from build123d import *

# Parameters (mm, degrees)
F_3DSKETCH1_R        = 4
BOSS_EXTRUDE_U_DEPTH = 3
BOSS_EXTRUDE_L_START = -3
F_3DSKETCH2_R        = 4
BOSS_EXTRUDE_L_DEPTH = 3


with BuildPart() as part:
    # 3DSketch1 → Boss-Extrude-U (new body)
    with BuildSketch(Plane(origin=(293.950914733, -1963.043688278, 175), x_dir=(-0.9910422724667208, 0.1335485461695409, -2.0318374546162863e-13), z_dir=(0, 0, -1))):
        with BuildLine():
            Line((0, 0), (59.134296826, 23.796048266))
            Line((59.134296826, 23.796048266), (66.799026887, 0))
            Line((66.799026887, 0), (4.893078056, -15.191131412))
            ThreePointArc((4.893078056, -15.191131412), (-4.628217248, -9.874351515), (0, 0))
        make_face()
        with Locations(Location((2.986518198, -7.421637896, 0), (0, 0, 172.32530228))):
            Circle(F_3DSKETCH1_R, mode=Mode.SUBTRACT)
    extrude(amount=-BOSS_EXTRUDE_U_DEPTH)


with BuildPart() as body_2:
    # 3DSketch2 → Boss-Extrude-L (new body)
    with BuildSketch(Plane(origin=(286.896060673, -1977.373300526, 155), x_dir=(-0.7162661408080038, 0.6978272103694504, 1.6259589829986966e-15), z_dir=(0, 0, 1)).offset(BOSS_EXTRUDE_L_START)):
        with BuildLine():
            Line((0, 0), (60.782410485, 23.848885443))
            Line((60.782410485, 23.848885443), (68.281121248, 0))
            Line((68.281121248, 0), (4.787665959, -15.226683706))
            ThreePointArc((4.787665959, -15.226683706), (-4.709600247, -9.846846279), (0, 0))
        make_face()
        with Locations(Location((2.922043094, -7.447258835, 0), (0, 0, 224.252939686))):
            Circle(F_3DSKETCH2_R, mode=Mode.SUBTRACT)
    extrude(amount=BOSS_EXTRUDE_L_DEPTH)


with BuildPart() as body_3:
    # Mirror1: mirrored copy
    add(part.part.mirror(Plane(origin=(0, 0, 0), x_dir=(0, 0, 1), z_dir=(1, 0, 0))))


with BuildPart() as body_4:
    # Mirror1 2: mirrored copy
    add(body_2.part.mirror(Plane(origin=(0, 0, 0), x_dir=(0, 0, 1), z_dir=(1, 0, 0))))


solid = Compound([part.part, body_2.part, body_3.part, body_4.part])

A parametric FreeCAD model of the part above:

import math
import FreeCAD as App
import Part
import Sketcher
from FreeCAD import Vector
Q = App.Units.Quantity

doc = App.newDocument("Part")
body = doc.addObject("PartDesign::Body", "Body")

sketch1 = doc.addObject("Sketcher::SketchObject", "Sketch")
body.addObject(sketch1)
sketch1.AttachmentSupport = (doc.XY_Plane, [""])
sketch1.MapMode = "FlatFace"
sketch1.AttachmentOffset = App.Placement(Vector(0, 0, 175), App.Rotation())
sketch1.addGeometry(Part.LineSegment(Vector(238.5, -1931.6, 0), Vector(294, -1963, 0)), False)
sketch1.addGeometry(Part.ArcOfCircle(Part.Circle(Vector(290, -1970, 0), Vector(0, 0, 1), 8), math.radians(-111), math.radians(60)), False)
sketch1.addGeometry(Part.LineSegment(Vector(287.1, -1977.4, 0), Vector(227.8, -1954.1, 0)), False)
sketch1.addGeometry(Part.LineSegment(Vector(227.8, -1954.1, 0), Vector(238.5, -1931.6, 0)), False)
sketch1.addGeometry(Part.Circle(Vector(290, -1970, 0), Vector(0, 0, 1), 4), False)
sketch1.addConstraint(Sketcher.Constraint("Tangent", 0, 2, 1, 2))
sketch1.addConstraint(Sketcher.Constraint("Tangent", 1, 1, 2, 1))
sketch1.addConstraint(Sketcher.Constraint("Coincident", 2, 2, 3, 1))
sketch1.addConstraint(Sketcher.Constraint("Coincident", 3, 2, 0, 1))
sketch1.addConstraint(Sketcher.Constraint("Coincident", 4, 3, 1, 3))
sketch1.addConstraint(Sketcher.Constraint("Equal", 0, 2))
sketch1.addConstraint(Sketcher.Constraint("Diameter", 4, Q("8 mm")))
sketch1.addConstraint(Sketcher.Constraint("Radius", 1, Q("8 mm")))
sketch1.addConstraint(Sketcher.Constraint("Distance", 3, Q("25 mm")))
sketch1.addConstraint(Sketcher.Constraint("DistanceX", -1, 1, 1, 3, Q("290 mm")))
sketch1.addConstraint(Sketcher.Constraint("DistanceY", 1, 3, -1, 1, Q("1970 mm")))
sketch1.addConstraint(Sketcher.Constraint("DistanceX", 1, 1, 0, 2, Q("6.878001 mm")))
sketch1.addConstraint(Sketcher.Constraint("DistanceY", 3, 2, -1, 1, Q("1931.563499 mm")))
pad1 = doc.addObject("PartDesign::Pad", "Pad")
body.addObject(pad1)
pad1.Profile = sketch1
pad1.Length = 3
body2 = doc.addObject("PartDesign::Body", "Body001")

sketch2 = doc.addObject("Sketcher::SketchObject", "Sketch001")
body2.addObject(sketch2)
sketch2.AttachmentSupport = (doc.getObject("XY_Plane001"), [""])
sketch2.MapMode = "FlatFace"
sketch2.AttachmentOffset = App.Placement(Vector(0, 0, 152), App.Rotation())
sketch2.addGeometry(Part.LineSegment(Vector(226.717277, -1952.03983, 0), Vector(286.896061, -1977.373301, 0)), False)
sketch2.addGeometry(Part.ArcOfCircle(Part.Circle(Vector(290, -1970, 0), Vector(0, 0, 1), 8), math.radians(-112.829639), math.radians(59.232771)), False)
sketch2.addGeometry(Part.LineSegment(Vector(294.092412, -1963.125979, 0), Vector(237.988605, -1929.724876, 0)), False)
sketch2.addGeometry(Part.LineSegment(Vector(237.988605, -1929.724876, 0), Vector(226.717277, -1952.03983, 0)), False)
sketch2.addGeometry(Part.Circle(Vector(290, -1970, 0), Vector(0, 0, 1), 4), False)
sketch2.addConstraint(Sketcher.Constraint("Tangent", 0, 2, 1, 1))
sketch2.addConstraint(Sketcher.Constraint("Tangent", 1, 2, 2, 1))
sketch2.addConstraint(Sketcher.Constraint("Coincident", 2, 2, 3, 1))
sketch2.addConstraint(Sketcher.Constraint("Coincident", 3, 2, 0, 1))
sketch2.addConstraint(Sketcher.Constraint("Coincident", 4, 3, 1, 3))
sketch2.addConstraint(Sketcher.Constraint("Equal", 0, 2))
sketch2.addConstraint(Sketcher.Constraint("Diameter", 4, Q("8 mm")))
sketch2.addConstraint(Sketcher.Constraint("Radius", 1, Q("8 mm")))
sketch2.addConstraint(Sketcher.Constraint("Distance", 3, Q("25 mm")))
sketch2.addConstraint(Sketcher.Constraint("DistanceX", -1, 1, 1, 3, Q("290 mm")))
sketch2.addConstraint(Sketcher.Constraint("DistanceY", 1, 3, -1, 1, Q("1970 mm")))
sketch2.addConstraint(Sketcher.Constraint("DistanceY", 0, 2, -1, 1, Q("1977.373301 mm")))
sketch2.addConstraint(Sketcher.Constraint("DistanceY", 3, 2, -1, 1, Q("1952.03983 mm")))
pad2 = doc.addObject("PartDesign::Pad", "Pad001")
body2.addObject(pad2)
pad2.Profile = sketch2
pad2.Length = 3
body3 = doc.addObject("PartDesign::Body", "Body002")
doc.recompute()

mirroring = doc.addObject("Part::Mirroring", "Mirroring")
mirroring.Source = body
mirroring.Base = Vector(0, 0, 0)
mirroring.Normal = Vector(1, 0, 0)
body3.BaseFeature = mirroring
doc.recompute()
body4 = doc.addObject("PartDesign::Body", "Body003")
doc.recompute()

mirroring2 = doc.addObject("Part::Mirroring", "Mirroring001")
mirroring2.Source = body2
mirroring2.Base = Vector(0, 0, 0)
mirroring2.Normal = Vector(1, 0, 0)
body4.BaseFeature = mirroring2
doc.recompute()
mirroring.Visibility = False
mirroring2.Visibility = False

doc.recompute()
